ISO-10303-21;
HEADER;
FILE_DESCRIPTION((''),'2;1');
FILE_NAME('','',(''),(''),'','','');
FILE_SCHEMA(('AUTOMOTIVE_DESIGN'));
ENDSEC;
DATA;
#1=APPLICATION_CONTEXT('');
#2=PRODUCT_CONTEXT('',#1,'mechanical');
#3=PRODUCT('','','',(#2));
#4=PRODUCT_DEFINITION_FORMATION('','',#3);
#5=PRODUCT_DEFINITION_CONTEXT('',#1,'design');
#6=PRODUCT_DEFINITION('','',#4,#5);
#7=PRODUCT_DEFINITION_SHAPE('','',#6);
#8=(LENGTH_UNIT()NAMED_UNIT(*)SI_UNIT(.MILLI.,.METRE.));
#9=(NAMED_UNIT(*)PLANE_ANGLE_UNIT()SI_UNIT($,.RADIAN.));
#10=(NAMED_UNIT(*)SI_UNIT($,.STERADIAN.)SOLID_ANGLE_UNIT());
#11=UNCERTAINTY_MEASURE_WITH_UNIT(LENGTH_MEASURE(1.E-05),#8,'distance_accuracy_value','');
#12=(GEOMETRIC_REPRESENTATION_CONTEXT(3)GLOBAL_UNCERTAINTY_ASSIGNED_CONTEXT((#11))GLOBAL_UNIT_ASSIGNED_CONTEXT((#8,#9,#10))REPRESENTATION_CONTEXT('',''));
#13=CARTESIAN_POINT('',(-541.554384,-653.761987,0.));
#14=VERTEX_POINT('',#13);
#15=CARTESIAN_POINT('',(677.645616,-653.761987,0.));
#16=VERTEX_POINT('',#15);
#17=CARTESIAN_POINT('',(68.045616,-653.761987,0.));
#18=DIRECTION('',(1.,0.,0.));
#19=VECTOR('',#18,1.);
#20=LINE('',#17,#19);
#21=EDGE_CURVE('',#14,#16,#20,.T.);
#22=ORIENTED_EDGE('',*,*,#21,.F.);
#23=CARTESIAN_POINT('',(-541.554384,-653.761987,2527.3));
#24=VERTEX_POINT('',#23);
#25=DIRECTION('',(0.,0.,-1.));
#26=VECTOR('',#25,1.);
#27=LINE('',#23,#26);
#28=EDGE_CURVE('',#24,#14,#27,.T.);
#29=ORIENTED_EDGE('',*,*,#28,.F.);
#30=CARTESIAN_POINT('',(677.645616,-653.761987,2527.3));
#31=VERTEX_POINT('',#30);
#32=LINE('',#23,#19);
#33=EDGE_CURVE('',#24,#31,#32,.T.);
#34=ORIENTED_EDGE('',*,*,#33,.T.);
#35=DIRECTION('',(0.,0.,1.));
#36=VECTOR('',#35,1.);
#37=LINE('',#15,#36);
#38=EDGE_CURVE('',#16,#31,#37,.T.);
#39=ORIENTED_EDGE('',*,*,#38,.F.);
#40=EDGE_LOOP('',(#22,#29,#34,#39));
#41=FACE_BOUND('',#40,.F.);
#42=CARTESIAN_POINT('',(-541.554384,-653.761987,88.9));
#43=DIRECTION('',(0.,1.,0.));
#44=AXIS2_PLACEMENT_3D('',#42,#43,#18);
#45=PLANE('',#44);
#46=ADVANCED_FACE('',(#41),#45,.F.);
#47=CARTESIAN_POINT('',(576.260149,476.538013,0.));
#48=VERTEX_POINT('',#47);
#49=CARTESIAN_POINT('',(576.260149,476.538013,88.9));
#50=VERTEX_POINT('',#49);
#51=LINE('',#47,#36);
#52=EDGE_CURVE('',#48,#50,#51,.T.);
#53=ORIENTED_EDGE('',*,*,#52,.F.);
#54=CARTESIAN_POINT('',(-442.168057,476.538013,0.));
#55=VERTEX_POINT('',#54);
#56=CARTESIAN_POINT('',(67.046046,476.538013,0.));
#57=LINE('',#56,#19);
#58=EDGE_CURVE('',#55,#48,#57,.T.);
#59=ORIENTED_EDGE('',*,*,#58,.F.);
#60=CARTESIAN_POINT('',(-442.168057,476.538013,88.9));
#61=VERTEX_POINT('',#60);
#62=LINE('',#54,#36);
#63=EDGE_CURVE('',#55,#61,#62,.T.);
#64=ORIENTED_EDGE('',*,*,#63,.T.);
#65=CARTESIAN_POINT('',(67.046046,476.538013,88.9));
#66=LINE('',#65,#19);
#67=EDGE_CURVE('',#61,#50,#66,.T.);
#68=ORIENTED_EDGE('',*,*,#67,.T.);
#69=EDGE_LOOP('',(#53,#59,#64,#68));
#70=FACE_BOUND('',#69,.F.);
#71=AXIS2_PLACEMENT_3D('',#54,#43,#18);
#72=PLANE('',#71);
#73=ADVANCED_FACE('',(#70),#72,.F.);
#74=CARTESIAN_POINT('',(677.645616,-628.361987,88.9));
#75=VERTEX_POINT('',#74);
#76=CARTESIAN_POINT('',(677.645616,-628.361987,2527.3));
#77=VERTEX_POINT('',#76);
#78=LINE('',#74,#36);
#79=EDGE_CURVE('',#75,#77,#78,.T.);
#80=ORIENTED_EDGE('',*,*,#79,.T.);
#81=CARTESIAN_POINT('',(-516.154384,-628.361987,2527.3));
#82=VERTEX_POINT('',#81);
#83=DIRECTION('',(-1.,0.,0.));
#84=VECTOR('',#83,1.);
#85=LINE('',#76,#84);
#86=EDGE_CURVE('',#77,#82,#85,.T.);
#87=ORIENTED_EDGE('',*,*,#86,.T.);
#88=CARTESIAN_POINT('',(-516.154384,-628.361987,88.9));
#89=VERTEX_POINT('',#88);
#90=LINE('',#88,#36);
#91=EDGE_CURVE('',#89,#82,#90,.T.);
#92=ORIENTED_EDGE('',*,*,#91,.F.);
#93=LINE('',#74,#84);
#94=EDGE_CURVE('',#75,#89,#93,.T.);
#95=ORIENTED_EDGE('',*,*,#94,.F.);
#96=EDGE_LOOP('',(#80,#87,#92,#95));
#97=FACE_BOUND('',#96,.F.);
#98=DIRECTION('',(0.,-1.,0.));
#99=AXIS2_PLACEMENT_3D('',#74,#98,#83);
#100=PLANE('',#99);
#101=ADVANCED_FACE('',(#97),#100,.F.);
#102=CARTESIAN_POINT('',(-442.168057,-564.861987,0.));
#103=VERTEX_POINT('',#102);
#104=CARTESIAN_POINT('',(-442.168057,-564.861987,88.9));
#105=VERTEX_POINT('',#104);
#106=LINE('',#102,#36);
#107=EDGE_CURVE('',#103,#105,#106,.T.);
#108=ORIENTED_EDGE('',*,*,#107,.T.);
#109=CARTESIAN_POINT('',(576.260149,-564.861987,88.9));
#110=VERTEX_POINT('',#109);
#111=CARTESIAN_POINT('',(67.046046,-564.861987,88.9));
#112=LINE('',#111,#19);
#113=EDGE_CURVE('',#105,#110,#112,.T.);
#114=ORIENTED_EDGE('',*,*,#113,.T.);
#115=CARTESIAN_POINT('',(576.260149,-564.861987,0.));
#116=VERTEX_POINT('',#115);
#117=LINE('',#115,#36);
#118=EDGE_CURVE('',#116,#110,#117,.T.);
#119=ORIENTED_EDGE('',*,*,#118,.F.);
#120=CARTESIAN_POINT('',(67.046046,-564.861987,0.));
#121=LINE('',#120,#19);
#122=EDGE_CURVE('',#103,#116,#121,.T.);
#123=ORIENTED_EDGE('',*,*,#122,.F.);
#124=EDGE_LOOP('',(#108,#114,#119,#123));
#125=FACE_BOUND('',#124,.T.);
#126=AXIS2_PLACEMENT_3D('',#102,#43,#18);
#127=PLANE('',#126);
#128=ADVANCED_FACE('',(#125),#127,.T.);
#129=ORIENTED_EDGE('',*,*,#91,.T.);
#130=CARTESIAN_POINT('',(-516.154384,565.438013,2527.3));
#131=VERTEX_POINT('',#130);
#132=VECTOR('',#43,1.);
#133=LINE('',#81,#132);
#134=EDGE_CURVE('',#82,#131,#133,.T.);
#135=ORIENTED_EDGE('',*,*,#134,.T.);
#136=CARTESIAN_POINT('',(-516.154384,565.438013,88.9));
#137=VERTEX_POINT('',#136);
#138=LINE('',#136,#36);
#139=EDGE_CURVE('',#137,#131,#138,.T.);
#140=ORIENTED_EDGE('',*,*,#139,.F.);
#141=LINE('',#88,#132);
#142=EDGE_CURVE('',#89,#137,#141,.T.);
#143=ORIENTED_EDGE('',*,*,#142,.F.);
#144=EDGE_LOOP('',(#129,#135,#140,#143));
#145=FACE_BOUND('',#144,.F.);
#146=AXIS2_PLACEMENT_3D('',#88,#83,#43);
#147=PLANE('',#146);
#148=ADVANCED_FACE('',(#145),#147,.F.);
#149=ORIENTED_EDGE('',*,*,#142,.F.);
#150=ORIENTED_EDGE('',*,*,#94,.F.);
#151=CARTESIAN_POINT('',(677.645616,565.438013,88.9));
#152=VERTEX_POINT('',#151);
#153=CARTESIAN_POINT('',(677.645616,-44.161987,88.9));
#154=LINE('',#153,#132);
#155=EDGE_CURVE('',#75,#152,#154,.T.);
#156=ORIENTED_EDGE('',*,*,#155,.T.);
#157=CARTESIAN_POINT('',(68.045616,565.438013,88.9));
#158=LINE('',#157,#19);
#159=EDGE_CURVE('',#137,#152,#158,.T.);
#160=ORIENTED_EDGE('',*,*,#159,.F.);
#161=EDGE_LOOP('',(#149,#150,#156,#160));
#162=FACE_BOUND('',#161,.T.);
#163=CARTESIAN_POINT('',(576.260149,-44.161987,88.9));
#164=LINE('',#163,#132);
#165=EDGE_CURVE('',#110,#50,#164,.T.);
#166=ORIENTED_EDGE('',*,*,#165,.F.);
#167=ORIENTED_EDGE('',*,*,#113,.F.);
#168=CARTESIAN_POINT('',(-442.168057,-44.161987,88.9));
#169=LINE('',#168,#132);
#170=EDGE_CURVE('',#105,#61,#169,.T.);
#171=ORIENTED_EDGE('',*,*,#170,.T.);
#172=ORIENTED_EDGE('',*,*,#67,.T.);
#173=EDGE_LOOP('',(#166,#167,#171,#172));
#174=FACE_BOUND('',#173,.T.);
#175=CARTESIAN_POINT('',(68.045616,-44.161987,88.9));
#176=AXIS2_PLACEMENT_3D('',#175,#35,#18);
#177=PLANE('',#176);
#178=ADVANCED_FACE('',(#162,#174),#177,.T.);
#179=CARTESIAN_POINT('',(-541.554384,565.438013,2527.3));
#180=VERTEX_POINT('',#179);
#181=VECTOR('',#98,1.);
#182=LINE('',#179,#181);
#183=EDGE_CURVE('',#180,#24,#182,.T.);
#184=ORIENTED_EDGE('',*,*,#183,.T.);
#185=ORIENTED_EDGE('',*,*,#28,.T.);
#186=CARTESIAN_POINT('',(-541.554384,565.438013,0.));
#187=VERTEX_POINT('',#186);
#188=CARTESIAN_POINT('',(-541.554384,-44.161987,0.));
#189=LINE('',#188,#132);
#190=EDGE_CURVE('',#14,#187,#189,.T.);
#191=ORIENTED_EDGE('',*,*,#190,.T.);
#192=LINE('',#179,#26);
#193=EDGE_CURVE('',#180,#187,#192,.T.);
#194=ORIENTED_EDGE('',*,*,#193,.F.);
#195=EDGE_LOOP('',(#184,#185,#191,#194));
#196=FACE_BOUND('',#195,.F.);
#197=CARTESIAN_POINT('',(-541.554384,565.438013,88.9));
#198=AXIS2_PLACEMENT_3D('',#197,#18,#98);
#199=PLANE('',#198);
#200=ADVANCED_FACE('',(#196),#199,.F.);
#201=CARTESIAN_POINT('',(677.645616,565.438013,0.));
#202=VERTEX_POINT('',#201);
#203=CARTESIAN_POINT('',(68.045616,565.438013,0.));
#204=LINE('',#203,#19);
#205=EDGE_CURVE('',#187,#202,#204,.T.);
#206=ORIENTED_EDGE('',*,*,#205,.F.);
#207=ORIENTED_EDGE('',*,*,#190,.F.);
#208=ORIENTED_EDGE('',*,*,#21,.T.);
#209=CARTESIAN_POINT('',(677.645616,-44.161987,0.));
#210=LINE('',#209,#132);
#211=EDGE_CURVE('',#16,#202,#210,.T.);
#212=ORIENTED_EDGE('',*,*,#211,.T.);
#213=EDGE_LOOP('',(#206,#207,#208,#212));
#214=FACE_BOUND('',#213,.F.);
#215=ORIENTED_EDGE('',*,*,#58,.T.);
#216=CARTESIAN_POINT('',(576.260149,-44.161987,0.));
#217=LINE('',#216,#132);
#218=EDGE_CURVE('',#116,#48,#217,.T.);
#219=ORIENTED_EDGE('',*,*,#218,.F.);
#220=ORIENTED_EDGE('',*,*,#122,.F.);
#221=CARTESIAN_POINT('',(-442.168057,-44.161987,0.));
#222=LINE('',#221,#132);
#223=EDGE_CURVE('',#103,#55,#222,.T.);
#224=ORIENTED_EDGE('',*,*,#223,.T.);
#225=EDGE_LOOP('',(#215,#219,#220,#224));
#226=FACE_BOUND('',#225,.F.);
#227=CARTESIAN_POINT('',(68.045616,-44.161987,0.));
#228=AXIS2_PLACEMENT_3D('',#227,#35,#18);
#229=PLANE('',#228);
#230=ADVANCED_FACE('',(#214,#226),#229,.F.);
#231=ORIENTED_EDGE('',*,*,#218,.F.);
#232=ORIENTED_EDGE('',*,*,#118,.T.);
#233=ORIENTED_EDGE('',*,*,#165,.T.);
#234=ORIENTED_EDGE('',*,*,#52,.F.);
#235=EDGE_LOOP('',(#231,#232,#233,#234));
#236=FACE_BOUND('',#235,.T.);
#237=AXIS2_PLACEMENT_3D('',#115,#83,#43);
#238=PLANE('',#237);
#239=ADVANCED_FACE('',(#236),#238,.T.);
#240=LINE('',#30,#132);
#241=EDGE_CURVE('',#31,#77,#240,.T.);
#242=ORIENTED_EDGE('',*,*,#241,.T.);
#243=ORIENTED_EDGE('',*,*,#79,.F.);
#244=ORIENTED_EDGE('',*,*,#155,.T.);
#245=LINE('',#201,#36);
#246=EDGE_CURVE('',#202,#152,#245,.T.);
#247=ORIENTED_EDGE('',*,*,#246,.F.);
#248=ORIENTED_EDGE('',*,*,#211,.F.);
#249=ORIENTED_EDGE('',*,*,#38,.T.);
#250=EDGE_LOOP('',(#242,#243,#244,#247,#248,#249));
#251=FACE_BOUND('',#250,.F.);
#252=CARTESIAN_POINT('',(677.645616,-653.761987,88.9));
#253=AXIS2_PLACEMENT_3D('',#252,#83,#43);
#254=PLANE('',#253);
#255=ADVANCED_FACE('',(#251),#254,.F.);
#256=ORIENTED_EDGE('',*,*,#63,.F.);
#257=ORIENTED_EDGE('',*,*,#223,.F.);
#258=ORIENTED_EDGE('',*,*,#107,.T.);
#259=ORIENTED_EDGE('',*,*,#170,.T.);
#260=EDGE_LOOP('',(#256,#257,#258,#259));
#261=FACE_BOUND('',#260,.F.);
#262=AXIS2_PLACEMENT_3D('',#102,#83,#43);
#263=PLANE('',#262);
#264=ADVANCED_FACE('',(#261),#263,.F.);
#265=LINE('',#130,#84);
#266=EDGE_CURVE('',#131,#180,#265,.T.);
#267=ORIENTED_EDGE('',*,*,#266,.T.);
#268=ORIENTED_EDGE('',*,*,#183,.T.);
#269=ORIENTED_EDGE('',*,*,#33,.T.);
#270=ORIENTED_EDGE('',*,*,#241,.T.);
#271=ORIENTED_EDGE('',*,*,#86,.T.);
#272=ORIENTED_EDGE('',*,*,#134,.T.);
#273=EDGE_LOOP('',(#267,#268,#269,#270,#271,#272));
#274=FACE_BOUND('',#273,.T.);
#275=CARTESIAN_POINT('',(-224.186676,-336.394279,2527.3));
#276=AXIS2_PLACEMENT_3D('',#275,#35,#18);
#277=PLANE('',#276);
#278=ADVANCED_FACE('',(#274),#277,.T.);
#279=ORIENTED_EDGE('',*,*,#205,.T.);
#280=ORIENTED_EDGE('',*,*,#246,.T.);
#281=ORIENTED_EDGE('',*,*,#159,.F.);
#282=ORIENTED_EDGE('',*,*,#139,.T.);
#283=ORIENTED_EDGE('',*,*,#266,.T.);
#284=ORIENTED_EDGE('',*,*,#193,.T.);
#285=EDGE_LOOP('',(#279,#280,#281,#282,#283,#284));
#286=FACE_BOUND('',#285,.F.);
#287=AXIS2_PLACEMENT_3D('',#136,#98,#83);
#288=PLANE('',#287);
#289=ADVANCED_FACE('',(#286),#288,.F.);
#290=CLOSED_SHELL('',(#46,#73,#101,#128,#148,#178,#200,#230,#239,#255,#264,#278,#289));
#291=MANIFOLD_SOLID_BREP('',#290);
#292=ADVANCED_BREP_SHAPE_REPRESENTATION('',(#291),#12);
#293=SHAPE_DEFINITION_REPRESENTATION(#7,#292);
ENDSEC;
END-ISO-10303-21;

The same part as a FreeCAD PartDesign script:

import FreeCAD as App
import Part
import Sketcher
from FreeCAD import Vector
Q = App.Units.Quantity


def add_polygon(sketch, points):
    """Adds a closed chain of lines whose ends are joined by coincident constraints."""
    first, n = sketch.GeometryCount, len(points)
    for a, b in zip(points, points[1:] + points[:1]):
        sketch.addGeometry(Part.LineSegment(App.Vector(*a, 0), App.Vector(*b, 0)), False)
    for i in range(n):
        sketch.addConstraint(Sketcher.Constraint("Coincident", first + i, 2, first + (i + 1) % n, 1))

doc = App.newDocument("Part")
body = doc.addObject("PartDesign::Body", "Body")

# Sketch on XY plane
sketch1 = body.newObject("Sketcher::SketchObject", "Sketch")
sketch1.AttachmentSupport = (doc.getObject("XY_Plane"), [""])
sketch1.MapMode = "FlatFace"
add_polygon(sketch1, [(-542, 565), (-542, -654), (678, -654), (678, 565)])  # lines 0-3
add_polygon(sketch1, [(576, -565), (-442, -565), (-442, 477), (576, 477)])  # lines 4-7
sketch1.addConstraint(Sketcher.Constraint("Vertical", 0))
sketch1.addConstraint(Sketcher.Constraint("Horizontal", 1))
sketch1.addConstraint(Sketcher.Constraint("Vertical", 2))
sketch1.addConstraint(Sketcher.Constraint("Horizontal", 3))
sketch1.addConstraint(Sketcher.Constraint("Horizontal", 4))
sketch1.addConstraint(Sketcher.Constraint("Vertical", 5))
sketch1.addConstraint(Sketcher.Constraint("Horizontal", 6))
sketch1.addConstraint(Sketcher.Constraint("Vertical", 7))
sketch1.addConstraint(Sketcher.Constraint("Equal", 3, 0))
sketch1.addConstraint(Sketcher.Constraint("DistanceX", 1, 1, 1, 2, Q("48 in")))
sketch1.addConstraint(Sketcher.Constraint("DistanceY", 5, 1, 5, 2, Q("41 in")))
sketch1.addConstraint(Sketcher.Constraint("DistanceY", 0, 2, 4, 2, Q("3.5 in")))
sketch1.addConstraint(Sketcher.Constraint("DistanceX", 4, 2, 4, 1, Q("1018.428206 mm")))
sketch1.addConstraint(Sketcher.Constraint("DistanceX", -1, 1, 6, 2, Q("576.260149 mm")))
sketch1.addConstraint(Sketcher.Constraint("DistanceX", 0, 2, -1, 1, Q("541.554384 mm")))
sketch1.addConstraint(Sketcher.Constraint("DistanceY", 0, 2, -1, 1, Q("653.761987 mm")))
pad1 = body.newObject("PartDesign::Pad", "Pad")
pad1.Profile = sketch1
pad1.Length = Q("3.5 in")

# Sketch on XY plane
sketch2 = body.newObject("Sketcher::SketchObject", "Sketch001")
sketch2.AttachmentSupport = (doc.getObject("XY_Plane"), [""])
sketch2.MapMode = "FlatFace"
sketch2.AttachmentOffset = App.Placement(Vector(0, 0, 3.5 * 25.4), App.Rotation())
add_polygon(sketch2, [(-542, -654), (678, -654), (678, -628), (-516, -628), (-516, 565), (-542, 565)])  # lines 0-5
sketch2.addConstraint(Sketcher.Constraint("Horizontal", 0))
sketch2.addConstraint(Sketcher.Constraint("Vertical", 1))
sketch2.addConstraint(Sketcher.Constraint("Horizontal", 2))
sketch2.addConstraint(Sketcher.Constraint("Vertical", 3))
sketch2.addConstraint(Sketcher.Constraint("Horizontal", 4))
sketch2.addConstraint(Sketcher.Constraint("Vertical", 5))
sketch2.addConstraint(Sketcher.Constraint("Equal", 4, 1))
sketch2.addConstraint(Sketcher.Constraint("Equal", 2, 3))
sketch2.addConstraint(Sketcher.Constraint("DistanceX", 0, 1, 0, 2, Q("48 in")))
sketch2.addConstraint(Sketcher.Constraint("DistanceX", 2, 2, 2, 1, Q("47 in")))
sketch2.addConstraint(Sketcher.Constraint("DistanceX", -1, 1, 0, 2, Q("677.645616 mm")))
sketch2.addConstraint(Sketcher.Constraint("DistanceY", 0, 2, -1, 1, Q("653.761987 mm")))
pad2 = body.newObject("PartDesign::Pad", "Pad001")
pad2.Profile = sketch2
pad2.Length = Q("96 in")

doc.recompute()
